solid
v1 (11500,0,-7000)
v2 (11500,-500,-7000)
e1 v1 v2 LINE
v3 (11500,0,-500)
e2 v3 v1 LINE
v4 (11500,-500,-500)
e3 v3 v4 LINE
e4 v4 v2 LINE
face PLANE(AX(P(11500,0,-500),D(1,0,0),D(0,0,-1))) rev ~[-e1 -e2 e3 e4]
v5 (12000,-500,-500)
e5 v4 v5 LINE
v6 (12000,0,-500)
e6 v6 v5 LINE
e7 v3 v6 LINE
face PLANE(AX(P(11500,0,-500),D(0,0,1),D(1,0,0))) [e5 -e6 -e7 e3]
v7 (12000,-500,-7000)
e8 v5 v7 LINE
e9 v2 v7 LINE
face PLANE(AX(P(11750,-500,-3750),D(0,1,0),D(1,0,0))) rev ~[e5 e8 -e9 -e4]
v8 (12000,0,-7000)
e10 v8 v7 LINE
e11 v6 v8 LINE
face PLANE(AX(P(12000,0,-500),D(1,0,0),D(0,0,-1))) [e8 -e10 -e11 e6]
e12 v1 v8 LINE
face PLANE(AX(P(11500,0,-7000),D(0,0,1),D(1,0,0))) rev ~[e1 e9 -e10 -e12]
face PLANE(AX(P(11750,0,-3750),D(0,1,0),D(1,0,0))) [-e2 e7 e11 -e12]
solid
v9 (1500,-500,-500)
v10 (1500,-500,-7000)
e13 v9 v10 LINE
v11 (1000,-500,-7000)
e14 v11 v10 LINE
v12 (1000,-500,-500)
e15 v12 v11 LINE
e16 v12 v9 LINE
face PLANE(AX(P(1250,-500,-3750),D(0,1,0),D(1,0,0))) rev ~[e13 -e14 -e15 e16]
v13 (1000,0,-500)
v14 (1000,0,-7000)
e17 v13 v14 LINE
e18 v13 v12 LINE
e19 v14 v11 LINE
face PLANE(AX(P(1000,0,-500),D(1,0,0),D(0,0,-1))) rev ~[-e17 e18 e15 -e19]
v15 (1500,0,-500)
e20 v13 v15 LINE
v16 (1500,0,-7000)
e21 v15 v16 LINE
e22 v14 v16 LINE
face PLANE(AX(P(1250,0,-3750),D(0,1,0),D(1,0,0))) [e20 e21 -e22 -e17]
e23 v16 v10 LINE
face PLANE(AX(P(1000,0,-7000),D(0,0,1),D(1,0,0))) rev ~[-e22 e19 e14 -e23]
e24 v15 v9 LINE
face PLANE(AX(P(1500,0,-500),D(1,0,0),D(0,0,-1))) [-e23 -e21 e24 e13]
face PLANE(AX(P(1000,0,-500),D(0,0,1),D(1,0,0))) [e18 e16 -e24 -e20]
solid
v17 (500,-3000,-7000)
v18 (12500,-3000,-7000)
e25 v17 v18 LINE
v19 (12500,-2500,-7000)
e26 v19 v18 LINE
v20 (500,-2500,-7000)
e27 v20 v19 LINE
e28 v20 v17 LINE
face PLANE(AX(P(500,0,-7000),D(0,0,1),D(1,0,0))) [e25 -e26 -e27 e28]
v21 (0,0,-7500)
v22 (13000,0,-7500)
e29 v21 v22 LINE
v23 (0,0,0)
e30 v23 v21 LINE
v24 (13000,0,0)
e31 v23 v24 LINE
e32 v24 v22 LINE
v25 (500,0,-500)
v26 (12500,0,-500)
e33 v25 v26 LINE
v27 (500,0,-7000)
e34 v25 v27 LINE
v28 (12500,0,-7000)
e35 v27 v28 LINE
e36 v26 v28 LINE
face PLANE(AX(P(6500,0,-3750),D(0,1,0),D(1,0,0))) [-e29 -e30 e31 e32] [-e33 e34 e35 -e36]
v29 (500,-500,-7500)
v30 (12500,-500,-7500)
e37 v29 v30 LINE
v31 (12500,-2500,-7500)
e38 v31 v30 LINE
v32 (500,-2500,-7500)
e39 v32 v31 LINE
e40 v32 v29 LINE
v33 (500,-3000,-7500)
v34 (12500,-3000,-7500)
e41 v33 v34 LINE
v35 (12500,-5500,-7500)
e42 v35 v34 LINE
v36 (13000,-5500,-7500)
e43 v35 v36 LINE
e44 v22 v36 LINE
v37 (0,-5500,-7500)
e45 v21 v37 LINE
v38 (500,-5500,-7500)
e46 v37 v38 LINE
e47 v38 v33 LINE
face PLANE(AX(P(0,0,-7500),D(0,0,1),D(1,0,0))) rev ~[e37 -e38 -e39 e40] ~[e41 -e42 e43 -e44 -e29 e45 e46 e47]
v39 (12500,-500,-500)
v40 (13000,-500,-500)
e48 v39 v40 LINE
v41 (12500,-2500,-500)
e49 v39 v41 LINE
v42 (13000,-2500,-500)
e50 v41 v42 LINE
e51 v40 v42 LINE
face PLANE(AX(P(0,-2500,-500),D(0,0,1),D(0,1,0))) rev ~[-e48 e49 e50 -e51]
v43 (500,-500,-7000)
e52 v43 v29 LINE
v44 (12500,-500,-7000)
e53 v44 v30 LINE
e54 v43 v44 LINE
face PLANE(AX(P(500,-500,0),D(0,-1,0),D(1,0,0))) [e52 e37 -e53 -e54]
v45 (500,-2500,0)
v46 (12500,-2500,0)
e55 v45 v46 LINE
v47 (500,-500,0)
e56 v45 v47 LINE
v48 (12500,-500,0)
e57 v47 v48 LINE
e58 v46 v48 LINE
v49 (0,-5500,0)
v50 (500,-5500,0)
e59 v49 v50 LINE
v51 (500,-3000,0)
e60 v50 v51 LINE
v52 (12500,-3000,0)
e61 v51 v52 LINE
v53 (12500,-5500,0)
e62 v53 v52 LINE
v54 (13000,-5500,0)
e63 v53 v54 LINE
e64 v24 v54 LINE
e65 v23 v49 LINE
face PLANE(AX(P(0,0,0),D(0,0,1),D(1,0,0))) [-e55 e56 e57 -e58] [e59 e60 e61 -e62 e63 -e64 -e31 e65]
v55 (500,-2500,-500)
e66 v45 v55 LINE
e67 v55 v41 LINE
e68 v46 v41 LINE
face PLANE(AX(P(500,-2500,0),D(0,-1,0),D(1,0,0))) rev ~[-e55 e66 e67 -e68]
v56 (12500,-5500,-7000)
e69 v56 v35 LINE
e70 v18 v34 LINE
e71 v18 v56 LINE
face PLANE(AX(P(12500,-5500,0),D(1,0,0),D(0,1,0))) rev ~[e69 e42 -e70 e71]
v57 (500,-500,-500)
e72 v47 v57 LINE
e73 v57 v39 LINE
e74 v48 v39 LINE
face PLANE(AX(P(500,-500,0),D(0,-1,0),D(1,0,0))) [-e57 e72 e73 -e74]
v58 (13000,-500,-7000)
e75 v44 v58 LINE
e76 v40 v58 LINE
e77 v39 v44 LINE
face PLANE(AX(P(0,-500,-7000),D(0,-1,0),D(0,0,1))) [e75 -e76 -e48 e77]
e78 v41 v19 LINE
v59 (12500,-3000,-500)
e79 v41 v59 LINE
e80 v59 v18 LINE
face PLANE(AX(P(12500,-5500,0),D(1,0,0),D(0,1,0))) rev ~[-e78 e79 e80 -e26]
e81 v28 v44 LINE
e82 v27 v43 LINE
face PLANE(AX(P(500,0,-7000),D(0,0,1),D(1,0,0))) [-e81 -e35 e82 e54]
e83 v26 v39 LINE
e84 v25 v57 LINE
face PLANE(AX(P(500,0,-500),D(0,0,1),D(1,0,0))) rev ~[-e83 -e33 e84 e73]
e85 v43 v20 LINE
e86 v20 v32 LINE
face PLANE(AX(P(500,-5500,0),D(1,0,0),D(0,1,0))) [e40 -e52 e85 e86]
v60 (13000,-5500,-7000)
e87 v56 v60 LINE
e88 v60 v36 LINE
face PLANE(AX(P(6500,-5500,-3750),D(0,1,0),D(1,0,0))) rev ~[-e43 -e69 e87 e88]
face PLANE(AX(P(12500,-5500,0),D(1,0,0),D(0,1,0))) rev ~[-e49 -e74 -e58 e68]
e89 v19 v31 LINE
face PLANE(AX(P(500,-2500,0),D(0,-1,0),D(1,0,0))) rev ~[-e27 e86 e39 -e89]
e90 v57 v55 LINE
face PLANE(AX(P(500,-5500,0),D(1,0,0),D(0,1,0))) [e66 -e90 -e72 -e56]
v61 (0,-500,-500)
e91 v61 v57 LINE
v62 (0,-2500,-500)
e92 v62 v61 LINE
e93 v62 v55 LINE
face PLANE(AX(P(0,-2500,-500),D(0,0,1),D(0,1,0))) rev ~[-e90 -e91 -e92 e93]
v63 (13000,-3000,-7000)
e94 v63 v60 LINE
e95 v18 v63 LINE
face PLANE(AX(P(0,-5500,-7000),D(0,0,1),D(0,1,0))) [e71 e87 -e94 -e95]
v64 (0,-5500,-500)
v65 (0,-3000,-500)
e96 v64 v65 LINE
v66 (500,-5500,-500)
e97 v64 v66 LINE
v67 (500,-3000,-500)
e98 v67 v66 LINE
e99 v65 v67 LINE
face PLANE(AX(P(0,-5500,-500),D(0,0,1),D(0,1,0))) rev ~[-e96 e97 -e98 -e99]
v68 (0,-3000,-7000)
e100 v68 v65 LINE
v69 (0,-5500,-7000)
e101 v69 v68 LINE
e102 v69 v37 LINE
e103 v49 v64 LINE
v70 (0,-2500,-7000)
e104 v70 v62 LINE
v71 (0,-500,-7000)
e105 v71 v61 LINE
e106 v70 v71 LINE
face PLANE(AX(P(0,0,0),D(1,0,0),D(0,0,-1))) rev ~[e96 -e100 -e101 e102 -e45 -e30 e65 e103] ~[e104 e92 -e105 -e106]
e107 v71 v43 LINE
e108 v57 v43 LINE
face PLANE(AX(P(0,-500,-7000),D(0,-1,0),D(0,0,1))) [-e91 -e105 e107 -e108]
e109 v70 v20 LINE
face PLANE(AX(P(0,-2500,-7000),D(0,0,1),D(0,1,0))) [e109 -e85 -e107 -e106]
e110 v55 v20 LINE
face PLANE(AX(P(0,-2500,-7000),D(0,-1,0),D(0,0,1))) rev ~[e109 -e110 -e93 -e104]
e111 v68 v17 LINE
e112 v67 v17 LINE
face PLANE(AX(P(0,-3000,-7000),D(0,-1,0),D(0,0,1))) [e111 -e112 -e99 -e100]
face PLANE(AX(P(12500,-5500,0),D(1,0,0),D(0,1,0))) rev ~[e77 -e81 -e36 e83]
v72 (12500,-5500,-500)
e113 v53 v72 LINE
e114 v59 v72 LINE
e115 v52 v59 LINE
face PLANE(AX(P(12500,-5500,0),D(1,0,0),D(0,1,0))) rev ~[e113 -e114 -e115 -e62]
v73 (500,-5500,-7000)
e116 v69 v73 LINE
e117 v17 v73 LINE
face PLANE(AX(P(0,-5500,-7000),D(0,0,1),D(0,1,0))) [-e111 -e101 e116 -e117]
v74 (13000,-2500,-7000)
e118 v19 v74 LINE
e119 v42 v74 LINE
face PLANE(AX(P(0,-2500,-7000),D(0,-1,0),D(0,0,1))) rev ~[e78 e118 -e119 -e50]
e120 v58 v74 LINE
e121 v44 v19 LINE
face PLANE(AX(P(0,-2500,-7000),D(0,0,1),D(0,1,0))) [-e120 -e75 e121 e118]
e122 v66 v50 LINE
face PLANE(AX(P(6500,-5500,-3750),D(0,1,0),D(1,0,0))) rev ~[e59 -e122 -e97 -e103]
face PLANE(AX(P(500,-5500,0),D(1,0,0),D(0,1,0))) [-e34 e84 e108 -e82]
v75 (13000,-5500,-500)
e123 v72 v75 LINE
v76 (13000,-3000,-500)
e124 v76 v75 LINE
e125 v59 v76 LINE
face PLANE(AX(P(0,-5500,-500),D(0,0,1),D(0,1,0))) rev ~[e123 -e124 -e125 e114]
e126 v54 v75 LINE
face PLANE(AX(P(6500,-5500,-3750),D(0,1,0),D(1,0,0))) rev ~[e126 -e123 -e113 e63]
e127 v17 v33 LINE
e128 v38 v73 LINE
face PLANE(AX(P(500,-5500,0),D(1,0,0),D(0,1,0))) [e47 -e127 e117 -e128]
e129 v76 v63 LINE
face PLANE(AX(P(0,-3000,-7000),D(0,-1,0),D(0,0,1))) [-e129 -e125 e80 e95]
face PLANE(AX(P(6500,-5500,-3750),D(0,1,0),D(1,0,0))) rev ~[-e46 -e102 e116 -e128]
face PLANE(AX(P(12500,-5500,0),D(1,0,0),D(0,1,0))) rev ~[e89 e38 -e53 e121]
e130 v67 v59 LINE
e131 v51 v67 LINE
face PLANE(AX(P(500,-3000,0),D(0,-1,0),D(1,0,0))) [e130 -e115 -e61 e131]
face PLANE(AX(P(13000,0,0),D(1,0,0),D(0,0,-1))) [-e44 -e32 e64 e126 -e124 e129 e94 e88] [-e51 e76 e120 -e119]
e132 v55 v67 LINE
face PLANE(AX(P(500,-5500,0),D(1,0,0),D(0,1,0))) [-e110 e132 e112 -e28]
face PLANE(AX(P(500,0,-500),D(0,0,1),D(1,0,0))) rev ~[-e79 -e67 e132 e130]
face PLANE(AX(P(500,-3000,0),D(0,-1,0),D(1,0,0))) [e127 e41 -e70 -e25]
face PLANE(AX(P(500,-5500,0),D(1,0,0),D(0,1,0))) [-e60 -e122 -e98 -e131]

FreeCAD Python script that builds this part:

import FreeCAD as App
import Part
import Sketcher


def add_polygon(sketch, points):
    """Adds a closed chain of lines whose ends are joined by coincident constraints."""
    first, n = sketch.GeometryCount, len(points)
    for a, b in zip(points, points[1:] + points[:1]):
        sketch.addGeometry(Part.LineSegment(App.Vector(*a, 0), App.Vector(*b, 0)), False)
    for i in range(n):
        sketch.addConstraint(Sketcher.Constraint("Coincident", first + i, 2, first + (i + 1) % n, 1))

doc = App.newDocument("Part")
body = doc.addObject("PartDesign::Body", "Body")

# Sketch on XZ plane
sketch1 = body.newObject("Sketcher::SketchObject", "Sketch")
sketch1.AttachmentSupport = (doc.getObject("XZ_Plane"), [""])
sketch1.MapMode = "FlatFace"
add_polygon(sketch1, [(0, -7500), (0, 0), (13000, 0), (13000, -7500)])  # lines 0-3
add_polygon(sketch1, [(12500, -500), (500, -500), (500, -7000), (12500, -7000)])  # lines 4-7
sketch1.addConstraint([
    Sketcher.Constraint("Vertical", 0),
    Sketcher.Constraint("Horizontal", 1),
    Sketcher.Constraint("Vertical", 2),
    Sketcher.Constraint("Horizontal", 3),
    Sketcher.Constraint("Horizontal", 4),
    Sketcher.Constraint("Vertical", 5),
    Sketcher.Constraint("Horizontal", 6),
    Sketcher.Constraint("Vertical", 7),
    Sketcher.Constraint("Coincident", 0, 2, -1, 1),
    Sketcher.Constraint("DistanceX", 1, 1, 1, 2, 13000.0),
    Sketcher.Constraint("DistanceX", 4, 2, 4, 1, 12000.0),
    Sketcher.Constraint("DistanceY", 0, 1, 0, 2, 7500.0),
    Sketcher.Constraint("DistanceY", 5, 2, 5, 1, 6500.0),
    Sketcher.Constraint("DistanceX", -1, 1, 4, 2, 500.0),
    Sketcher.Constraint("DistanceY", 4, 2, -1, 1, 500.0),
])
pad1 = body.newObject("PartDesign::Pad", "Pad")
pad1.Profile = sketch1
pad1.Length = 5500

# Sketch on XY plane
sketch2 = body.newObject("Sketcher::SketchObject", "Sketch001")
sketch2.AttachmentSupport = (doc.getObject("XY_Plane"), [""])
sketch2.MapMode = "FlatFace"
add_polygon(sketch2, [(500, -500), (500, -2500), (12500, -2500), (12500, -500)])  # lines 0-3
add_polygon(sketch2, [(500, -3000), (500, -5500), (12500, -5500), (12500, -3000)])  # lines 4-7
sketch2.addConstraint([
    Sketcher.Constraint("Vertical", 0),
    Sketcher.Constraint("Horizontal", 1),
    Sketcher.Constraint("Vertical", 2),
    Sketcher.Constraint("Horizontal", 3),
    Sketcher.Constraint("Vertical", 4),
    Sketcher.Constraint("Horizontal", 5),
    Sketcher.Constraint("Vertical", 6),
    Sketcher.Constraint("Horizontal", 7),
    Sketcher.Constraint("Vertical", 3, 2, 4, 2),
    Sketcher.Constraint("Vertical", 2, 2, 5, 2),
    Sketcher.Constraint("DistanceX", 1, 1, 1, 2, 12000.0),
    Sketcher.Constraint("DistanceY", 0, 2, 0, 1, 2000.0),
    Sketcher.Constraint("DistanceY", 4, 2, 4, 1, 2500.0),
    Sketcher.Constraint("DistanceX", -1, 1, 0, 2, 500.0),
    Sketcher.Constraint("DistanceY", 0, 2, -1, 1, 2500.0),
    Sketcher.Constraint("DistanceY", 4, 2, -1, 1, 5500.0),
])
pocket1 = body.newObject("PartDesign::Pocket", "Pocket")
pocket1.Profile = sketch2
pocket1.Type = "ThroughAll"

# Sketch on YZ plane
sketch3 = body.newObject("Sketcher::SketchObject", "Sketch002")
sketch3.AttachmentSupport = (doc.getObject("YZ_Plane"), [""])
sketch3.MapMode = "FlatFace"
add_polygon(sketch3, [(-500, -7000), (-2500, -7000), (-2500, -500), (-500, -500)])  # lines 0-3
add_polygon(sketch3, [(-3000, -7000), (-5500, -7000), (-5500, -500), (-3000, -500)])  # lines 4-7
sketch3.addConstraint([
    Sketcher.Constraint("Horizontal", 0),
    Sketcher.Constraint("Vertical", 1),
    Sketcher.Constraint("Horizontal", 2),
    Sketcher.Constraint("Vertical", 3),
    Sketcher.Constraint("Horizontal", 4),
    Sketcher.Constraint("Vertical", 5),
    Sketcher.Constraint("Horizontal", 6),
    Sketcher.Constraint("Vertical", 7),
    Sketcher.Constraint("Horizontal", 3, 2, 4, 2),
    Sketcher.Constraint("Horizontal", 2, 2, 5, 2),
    Sketcher.Constraint("DistanceX", 0, 2, 0, 1, 2000.0),
    Sketcher.Constraint("DistanceX", 4, 2, 4, 1, 2500.0),
    Sketcher.Constraint("DistanceY", 1, 1, 1, 2, 6500.0),
    Sketcher.Constraint("DistanceX", 0, 2, -1, 1, 2500.0),
    Sketcher.Constraint("DistanceY", 0, 2, -1, 1, 7000.0),
    Sketcher.Constraint("DistanceX", 4, 2, -1, 1, 5500.0),
])
pocket2 = body.newObject("PartDesign::Pocket", "Pocket001")
pocket2.Profile = sketch3
pocket2.Type = "ThroughAll"
pocket2.Reversed = True
body2 = doc.addObject("PartDesign::Body", "Body001")

# Sketch on XZ plane
sketch4 = body2.newObject("Sketcher::SketchObject", "Sketch003")
sketch4.AttachmentSupport = (doc.getObject("XZ_Plane001"), [""])
sketch4.MapMode = "FlatFace"
add_polygon(sketch4, [(1000, -7000), (1000, -500), (1500, -500), (1500, -7000)])  # lines 0-3
sketch4.addConstraint([
    Sketcher.Constraint("Vertical", 0),
    Sketcher.Constraint("Horizontal", 1),
    Sketcher.Constraint("Vertical", 2),
    Sketcher.Constraint("Horizontal", 3),
    Sketcher.Constraint("DistanceX", 1, 1, 1, 2, 500.0),
    Sketcher.Constraint("DistanceY", 0, 1, 0, 2, 6500.0),
    Sketcher.Constraint("DistanceX", -1, 1, 0, 2, 1000.0),
    Sketcher.Constraint("DistanceY", 0, 2, -1, 1, 500.0),
])
pad2 = body2.newObject("PartDesign::Pad", "Pad001")
pad2.Profile = sketch4
pad2.Length = 500
body3 = doc.addObject("PartDesign::Body", "Body002")

# Sketch on XZ plane
sketch5 = body3.newObject("Sketcher::SketchObject", "Sketch004")
sketch5.AttachmentSupport = (doc.getObject("XZ_Plane002"), [""])
sketch5.MapMode = "FlatFace"
add_polygon(sketch5, [(11500, -7000), (11500, -500), (12000, -500), (12000, -7000)])  # lines 0-3
sketch5.addConstraint([
    Sketcher.Constraint("Vertical", 0),
    Sketcher.Constraint("Horizontal", 1),
    Sketcher.Constraint("Vertical", 2),
    Sketcher.Constraint("Horizontal", 3),
    Sketcher.Constraint("DistanceX", 1, 1, 1, 2, 500.0),
    Sketcher.Constraint("DistanceY", 0, 1, 0, 2, 6500.0),
    Sketcher.Constraint("DistanceX", -1, 1, 0, 2, 11500.0),
    Sketcher.Constraint("DistanceY", 0, 2, -1, 1, 500.0),
])
pad3 = body3.newObject("PartDesign::Pad", "Pad002")
pad3.Profile = sketch5
pad3.Length = 500

doc.recompute()
